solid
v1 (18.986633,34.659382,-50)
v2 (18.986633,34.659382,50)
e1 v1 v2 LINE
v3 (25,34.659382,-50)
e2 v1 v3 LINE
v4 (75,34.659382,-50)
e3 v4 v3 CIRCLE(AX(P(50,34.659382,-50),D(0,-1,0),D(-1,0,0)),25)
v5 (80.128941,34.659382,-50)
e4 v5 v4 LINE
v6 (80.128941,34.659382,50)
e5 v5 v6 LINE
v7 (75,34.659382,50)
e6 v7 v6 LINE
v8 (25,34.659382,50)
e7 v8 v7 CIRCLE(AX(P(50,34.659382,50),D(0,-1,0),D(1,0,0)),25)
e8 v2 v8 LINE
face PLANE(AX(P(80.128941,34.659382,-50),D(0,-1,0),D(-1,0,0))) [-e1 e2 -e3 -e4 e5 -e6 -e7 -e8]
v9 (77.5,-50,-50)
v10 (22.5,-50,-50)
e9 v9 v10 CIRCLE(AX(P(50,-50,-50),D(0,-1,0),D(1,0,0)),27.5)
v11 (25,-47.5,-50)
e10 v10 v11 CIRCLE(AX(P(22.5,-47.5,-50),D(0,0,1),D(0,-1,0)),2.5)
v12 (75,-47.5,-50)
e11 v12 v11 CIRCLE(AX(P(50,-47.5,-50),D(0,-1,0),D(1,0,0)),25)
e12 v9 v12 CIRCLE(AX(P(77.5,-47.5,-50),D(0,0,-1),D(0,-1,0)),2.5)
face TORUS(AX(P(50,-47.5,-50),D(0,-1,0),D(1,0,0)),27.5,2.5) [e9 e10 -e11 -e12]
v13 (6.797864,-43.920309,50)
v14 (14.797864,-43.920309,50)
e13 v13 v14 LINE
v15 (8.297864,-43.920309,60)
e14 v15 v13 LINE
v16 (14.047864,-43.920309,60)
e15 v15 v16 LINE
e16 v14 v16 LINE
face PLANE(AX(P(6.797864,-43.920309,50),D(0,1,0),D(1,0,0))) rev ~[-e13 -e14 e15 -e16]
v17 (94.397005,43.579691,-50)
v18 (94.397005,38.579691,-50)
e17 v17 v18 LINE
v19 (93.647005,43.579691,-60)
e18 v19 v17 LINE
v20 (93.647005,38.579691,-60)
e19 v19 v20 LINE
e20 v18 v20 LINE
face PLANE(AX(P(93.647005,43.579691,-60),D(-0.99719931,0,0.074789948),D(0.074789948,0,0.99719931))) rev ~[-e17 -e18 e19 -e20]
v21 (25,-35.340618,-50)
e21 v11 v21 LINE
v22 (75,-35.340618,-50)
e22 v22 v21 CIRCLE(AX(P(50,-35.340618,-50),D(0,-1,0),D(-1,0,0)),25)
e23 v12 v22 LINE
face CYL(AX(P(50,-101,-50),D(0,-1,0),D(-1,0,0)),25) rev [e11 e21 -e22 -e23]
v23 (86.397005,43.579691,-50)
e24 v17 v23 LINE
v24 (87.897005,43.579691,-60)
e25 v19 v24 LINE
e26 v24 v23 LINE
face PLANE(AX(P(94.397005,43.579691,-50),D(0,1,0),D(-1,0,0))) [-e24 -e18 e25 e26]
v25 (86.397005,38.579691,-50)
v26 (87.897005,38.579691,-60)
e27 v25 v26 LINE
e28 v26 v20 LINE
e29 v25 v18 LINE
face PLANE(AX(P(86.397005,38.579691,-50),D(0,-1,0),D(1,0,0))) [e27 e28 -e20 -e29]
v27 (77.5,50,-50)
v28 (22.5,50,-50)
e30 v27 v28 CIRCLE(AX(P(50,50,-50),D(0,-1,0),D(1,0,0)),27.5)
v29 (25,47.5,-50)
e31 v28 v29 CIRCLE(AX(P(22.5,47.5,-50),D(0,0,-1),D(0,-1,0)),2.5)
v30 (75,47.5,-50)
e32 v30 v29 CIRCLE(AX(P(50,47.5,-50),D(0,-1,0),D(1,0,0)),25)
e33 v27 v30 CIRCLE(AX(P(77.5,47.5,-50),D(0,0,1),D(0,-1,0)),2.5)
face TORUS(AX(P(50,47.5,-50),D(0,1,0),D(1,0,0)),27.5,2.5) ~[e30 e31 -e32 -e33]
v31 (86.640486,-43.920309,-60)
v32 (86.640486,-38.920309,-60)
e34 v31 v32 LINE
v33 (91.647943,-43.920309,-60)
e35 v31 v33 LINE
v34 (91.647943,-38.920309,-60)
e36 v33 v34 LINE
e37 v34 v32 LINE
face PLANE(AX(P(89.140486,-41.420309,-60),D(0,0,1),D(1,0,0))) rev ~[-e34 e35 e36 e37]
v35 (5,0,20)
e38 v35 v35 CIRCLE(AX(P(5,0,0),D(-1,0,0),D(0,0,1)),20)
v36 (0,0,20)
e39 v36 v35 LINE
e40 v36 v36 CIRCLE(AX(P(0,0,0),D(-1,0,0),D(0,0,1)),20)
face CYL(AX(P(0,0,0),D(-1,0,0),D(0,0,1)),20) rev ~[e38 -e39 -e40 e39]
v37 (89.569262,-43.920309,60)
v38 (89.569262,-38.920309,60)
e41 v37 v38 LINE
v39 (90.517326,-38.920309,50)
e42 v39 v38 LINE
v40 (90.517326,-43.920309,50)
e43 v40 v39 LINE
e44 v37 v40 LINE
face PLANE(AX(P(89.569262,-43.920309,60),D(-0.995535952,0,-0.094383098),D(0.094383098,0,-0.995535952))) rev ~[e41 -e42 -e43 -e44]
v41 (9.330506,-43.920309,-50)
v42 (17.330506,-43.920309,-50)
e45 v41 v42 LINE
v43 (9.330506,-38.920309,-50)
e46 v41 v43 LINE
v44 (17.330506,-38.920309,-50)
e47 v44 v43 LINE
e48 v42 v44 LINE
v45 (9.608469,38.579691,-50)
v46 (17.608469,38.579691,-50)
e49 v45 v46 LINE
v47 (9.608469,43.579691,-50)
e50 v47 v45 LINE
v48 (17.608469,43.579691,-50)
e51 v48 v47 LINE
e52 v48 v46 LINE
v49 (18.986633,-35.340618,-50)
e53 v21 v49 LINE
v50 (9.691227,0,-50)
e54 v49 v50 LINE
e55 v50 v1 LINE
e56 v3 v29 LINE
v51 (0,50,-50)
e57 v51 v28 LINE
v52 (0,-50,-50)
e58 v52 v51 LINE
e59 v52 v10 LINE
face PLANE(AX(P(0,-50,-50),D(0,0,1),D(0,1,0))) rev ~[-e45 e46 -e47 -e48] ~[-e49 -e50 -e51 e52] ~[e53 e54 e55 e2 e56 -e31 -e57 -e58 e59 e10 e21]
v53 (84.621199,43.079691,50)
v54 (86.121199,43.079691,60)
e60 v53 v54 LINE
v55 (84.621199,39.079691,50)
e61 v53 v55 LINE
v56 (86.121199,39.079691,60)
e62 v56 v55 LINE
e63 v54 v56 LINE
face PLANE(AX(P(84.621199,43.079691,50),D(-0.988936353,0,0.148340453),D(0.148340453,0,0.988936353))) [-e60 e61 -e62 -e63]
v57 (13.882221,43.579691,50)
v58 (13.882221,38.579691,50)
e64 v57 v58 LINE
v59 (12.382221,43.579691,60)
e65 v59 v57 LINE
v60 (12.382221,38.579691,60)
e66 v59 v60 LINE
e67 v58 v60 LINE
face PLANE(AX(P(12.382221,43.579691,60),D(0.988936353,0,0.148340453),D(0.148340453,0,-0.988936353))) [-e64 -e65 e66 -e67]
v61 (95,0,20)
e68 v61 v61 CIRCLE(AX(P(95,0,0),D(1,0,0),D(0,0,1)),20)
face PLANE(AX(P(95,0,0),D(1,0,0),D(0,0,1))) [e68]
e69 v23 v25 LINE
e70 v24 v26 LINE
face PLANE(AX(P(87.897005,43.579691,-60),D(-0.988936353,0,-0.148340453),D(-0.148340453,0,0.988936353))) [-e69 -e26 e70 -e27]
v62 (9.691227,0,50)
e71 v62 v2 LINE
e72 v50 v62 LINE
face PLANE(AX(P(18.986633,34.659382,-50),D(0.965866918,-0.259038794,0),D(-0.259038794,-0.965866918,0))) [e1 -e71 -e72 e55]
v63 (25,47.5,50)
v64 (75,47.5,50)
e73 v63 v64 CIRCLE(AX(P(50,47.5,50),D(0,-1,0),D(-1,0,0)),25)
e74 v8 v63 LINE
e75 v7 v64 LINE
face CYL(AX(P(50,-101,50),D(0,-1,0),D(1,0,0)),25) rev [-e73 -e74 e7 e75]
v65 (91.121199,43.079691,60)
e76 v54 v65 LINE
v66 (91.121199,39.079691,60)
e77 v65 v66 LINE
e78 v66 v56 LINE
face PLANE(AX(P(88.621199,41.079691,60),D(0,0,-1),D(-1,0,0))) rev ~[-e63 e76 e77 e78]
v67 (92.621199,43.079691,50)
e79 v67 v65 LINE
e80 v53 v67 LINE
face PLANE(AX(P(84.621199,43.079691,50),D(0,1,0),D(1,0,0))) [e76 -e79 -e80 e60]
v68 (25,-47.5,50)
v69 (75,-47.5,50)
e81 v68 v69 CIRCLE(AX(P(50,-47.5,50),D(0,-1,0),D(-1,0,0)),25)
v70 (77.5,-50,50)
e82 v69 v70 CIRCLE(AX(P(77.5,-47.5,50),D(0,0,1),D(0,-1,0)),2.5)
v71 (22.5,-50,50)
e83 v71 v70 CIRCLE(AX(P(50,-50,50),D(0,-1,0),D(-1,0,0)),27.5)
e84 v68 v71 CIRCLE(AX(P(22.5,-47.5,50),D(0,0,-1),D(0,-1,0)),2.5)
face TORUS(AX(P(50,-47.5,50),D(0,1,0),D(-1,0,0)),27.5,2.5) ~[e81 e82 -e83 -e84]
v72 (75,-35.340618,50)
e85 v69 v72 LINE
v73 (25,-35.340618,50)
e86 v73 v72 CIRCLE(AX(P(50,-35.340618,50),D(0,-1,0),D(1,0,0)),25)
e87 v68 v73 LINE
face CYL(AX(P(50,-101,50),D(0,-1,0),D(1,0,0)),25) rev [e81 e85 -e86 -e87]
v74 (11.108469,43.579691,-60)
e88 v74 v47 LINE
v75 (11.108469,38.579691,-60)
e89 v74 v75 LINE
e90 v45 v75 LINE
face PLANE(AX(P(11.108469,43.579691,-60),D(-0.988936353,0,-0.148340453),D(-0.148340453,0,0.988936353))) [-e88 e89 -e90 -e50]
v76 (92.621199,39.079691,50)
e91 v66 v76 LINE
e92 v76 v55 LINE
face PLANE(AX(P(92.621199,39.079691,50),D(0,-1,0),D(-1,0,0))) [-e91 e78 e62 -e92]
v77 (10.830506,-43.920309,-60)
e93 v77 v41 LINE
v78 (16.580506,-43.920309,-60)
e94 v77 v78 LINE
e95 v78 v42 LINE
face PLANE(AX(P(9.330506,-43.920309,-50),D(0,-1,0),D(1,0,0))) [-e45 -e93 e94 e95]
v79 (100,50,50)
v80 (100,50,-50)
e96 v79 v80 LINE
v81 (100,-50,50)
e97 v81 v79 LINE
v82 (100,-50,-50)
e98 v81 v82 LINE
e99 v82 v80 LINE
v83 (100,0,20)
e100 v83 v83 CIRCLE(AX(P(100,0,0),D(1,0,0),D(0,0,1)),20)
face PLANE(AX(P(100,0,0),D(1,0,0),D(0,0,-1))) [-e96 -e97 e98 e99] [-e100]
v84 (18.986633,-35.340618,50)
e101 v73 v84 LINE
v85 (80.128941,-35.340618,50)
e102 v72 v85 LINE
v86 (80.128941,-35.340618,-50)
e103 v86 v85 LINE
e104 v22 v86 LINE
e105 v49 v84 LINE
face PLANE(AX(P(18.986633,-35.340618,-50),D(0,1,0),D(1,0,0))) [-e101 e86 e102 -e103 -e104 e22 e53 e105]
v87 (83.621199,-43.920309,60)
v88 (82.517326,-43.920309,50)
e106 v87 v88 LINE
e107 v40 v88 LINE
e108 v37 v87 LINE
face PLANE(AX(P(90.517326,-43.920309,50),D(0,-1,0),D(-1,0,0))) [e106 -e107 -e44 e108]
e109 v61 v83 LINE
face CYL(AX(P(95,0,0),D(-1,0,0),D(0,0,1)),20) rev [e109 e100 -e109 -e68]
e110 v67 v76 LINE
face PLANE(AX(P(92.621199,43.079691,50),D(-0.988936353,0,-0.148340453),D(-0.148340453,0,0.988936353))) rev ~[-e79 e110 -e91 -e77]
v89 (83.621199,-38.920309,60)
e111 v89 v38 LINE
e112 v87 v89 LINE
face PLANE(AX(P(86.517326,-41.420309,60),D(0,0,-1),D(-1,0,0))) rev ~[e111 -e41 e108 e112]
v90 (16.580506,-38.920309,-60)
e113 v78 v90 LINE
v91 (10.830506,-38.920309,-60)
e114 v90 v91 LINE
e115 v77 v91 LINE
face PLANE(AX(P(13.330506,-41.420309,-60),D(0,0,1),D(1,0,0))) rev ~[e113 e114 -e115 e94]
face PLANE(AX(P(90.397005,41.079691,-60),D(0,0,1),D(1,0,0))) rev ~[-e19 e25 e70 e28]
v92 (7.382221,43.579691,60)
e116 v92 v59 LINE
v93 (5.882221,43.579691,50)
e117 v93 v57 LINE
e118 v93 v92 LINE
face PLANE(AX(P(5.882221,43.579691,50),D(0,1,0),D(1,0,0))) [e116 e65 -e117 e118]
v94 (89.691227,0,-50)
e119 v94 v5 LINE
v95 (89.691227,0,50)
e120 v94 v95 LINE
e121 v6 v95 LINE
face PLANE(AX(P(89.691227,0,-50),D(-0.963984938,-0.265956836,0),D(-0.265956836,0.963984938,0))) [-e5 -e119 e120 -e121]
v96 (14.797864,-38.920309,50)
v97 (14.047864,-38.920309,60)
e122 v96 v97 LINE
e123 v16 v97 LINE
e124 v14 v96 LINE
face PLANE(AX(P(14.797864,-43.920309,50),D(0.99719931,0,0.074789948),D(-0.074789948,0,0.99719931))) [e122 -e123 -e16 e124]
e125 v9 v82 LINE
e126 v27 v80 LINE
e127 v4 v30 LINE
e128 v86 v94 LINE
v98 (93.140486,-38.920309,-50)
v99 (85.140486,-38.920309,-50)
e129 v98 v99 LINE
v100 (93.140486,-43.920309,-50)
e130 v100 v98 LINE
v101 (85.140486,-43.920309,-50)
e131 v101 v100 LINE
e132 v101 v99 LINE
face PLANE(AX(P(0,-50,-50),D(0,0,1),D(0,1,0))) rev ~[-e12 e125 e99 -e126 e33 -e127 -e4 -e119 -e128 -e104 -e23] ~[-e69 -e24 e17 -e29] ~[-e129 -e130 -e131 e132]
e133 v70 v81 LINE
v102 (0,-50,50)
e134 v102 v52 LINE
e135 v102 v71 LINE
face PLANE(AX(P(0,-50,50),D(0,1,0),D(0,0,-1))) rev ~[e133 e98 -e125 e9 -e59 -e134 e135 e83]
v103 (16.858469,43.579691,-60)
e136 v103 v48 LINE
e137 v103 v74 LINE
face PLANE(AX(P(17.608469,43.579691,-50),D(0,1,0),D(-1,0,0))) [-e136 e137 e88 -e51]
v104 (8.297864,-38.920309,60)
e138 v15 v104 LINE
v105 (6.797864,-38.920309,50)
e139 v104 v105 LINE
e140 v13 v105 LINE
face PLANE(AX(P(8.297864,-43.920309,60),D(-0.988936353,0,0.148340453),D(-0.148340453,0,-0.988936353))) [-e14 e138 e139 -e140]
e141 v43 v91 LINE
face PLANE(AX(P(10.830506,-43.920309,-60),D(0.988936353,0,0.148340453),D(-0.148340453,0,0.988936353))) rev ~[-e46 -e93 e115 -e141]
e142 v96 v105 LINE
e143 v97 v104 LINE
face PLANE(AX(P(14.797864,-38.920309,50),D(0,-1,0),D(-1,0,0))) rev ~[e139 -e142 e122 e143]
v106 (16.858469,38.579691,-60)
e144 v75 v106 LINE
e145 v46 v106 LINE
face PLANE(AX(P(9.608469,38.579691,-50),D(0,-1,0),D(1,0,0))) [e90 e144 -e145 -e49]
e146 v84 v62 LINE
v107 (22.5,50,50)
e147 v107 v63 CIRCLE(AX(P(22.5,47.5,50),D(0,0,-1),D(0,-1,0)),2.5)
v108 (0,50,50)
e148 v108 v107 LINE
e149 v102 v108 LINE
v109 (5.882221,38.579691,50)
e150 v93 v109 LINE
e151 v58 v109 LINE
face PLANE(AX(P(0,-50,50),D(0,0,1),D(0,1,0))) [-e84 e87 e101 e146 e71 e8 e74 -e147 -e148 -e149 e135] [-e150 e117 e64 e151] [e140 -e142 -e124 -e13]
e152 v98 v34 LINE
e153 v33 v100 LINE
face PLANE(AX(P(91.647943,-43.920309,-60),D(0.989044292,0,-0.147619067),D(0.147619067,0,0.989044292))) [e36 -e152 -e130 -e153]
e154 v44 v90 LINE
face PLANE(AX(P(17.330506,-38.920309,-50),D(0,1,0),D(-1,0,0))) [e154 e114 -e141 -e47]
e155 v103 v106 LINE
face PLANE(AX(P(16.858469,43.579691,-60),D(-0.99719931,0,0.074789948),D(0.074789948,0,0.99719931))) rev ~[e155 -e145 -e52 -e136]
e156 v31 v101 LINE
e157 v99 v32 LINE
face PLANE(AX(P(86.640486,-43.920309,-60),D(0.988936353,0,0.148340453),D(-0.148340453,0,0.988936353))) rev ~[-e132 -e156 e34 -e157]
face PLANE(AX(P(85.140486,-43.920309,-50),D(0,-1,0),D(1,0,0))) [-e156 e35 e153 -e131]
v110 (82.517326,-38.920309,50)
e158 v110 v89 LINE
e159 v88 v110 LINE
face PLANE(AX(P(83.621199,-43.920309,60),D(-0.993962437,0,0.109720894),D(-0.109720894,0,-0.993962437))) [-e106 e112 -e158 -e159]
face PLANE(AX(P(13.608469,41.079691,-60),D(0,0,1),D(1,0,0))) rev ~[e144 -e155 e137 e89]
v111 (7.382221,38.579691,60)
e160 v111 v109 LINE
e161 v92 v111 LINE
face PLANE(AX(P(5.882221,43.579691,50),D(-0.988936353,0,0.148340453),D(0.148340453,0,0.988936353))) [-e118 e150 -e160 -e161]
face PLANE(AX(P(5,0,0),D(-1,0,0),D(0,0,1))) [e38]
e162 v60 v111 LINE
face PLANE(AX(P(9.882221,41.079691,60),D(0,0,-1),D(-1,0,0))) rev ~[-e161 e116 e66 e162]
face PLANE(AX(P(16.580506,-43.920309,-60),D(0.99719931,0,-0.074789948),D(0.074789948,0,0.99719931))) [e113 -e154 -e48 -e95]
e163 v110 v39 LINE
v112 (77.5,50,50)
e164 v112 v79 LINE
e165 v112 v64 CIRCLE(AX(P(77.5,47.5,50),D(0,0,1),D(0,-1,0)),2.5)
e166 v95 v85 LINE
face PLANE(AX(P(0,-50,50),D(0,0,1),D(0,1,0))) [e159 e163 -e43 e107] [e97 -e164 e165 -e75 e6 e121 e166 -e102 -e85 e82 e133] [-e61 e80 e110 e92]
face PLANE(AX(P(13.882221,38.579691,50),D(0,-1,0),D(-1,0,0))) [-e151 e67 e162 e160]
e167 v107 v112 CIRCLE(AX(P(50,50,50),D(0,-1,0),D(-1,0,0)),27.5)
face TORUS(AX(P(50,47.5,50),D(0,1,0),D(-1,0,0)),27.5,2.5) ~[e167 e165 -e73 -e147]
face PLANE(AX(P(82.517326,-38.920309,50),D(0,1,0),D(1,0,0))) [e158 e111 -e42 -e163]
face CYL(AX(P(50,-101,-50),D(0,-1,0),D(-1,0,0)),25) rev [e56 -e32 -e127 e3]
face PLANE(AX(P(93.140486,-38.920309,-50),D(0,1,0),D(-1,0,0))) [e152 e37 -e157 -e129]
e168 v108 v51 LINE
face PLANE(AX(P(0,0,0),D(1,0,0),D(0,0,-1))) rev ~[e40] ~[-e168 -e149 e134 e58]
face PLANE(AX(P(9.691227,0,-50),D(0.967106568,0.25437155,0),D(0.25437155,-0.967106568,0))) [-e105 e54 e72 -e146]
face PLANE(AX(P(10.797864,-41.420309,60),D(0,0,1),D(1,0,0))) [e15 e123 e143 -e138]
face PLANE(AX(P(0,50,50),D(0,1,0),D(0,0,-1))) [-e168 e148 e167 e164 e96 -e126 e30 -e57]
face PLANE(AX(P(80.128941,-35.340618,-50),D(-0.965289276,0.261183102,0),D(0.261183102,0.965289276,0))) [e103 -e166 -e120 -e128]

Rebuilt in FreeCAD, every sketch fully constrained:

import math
import FreeCAD as App
import Part
import Sketcher
from FreeCAD import Vector
Q = App.Units.Quantity


def edges_at(feature, points):
    """Names of the edges that pass closest to the given points."""
    edges = feature.Shape.Edges
    near = lambda p: min(range(len(edges)), key=lambda i: edges[i].distToShape(Part.Vertex(*p))[0])
    return sorted({f"Edge{near(p) + 1}" for p in points})


def add_polygon(sketch, points):
    """Adds a closed chain of lines whose ends are joined by coincident constraints."""
    first, n = sketch.GeometryCount, len(points)
    for a, b in zip(points, points[1:] + points[:1]):
        sketch.addGeometry(Part.LineSegment(App.Vector(*a, 0), App.Vector(*b, 0)), False)
    for i in range(n):
        sketch.addConstraint(Sketcher.Constraint("Coincident", first + i, 2, first + (i + 1) % n, 1))

doc = App.newDocument("Part")
body = doc.addObject("PartDesign::Body", "Body")

sketch1 = doc.addObject("Sketcher::SketchObject", "Sketch")
body.addObject(sketch1)
sketch1.AttachmentSupport = (doc.YZ_Plane, [""])
sketch1.MapMode = "FlatFace"
add_polygon(sketch1, [(50, 50), (-50, 50), (-50, -50), (50, -50)])
sketch1.addConstraint([
    Sketcher.Constraint("Horizontal", 0),
    Sketcher.Constraint("Vertical", 1),
    Sketcher.Constraint("Horizontal", 2),
    Sketcher.Constraint("Vertical", 3),
    Sketcher.Constraint("Symmetric", 0, 2, 2, 2, -1, 1),
    Sketcher.Constraint("Equal", 2, 1),
    Sketcher.Constraint("DistanceX", 0, 2, 0, 1, Q("100 mm")),
])
pad1 = doc.addObject("PartDesign::Pad", "Pad")
body.addObject(pad1)
pad1.Profile = sketch1
pad1.Length = 100

sketch2 = doc.addObject("Sketcher::SketchObject", "Sketch001")
body.addObject(sketch2)
sketch2.AttachmentSupport = (doc.YZ_Plane, [""])
sketch2.MapMode = "FlatFace"
sketch2.addGeometry(Part.Circle(Vector(0, 0, 0), Vector(0, 0, 1), 20), False)
sketch2.addConstraint([
    Sketcher.Constraint("Coincident", 0, 3, -1, 1),
    Sketcher.Constraint("Diameter", 0, Q("40 mm")),
])
pocket1 = doc.addObject("PartDesign::Pocket", "Pocket")
body.addObject(pocket1)
pocket1.Profile = sketch2
pocket1.Length = 5
pocket1.Reversed = True

sketch3 = doc.addObject("Sketcher::SketchObject", "Sketch002")
body.addObject(sketch3)
sketch3.AttachmentSupport = (doc.YZ_Plane, [""])
sketch3.MapMode = "FlatFace"
sketch3.AttachmentOffset = App.Placement(Vector(0, 0, 95), App.Rotation())
sketch3.addGeometry(Part.Circle(Vector(0, 0, 0), Vector(0, 0, 1), 20), False)
sketch3.addConstraint([
    Sketcher.Constraint("Coincident", 0, 3, -1, 1),
    Sketcher.Constraint("Diameter", 0, Q("40 mm")),
])
pocket2 = doc.addObject("PartDesign::Pocket", "Pocket001")
body.addObject(pocket2)
pocket2.Profile = sketch3
pocket2.Length = 5
pocket2.Reversed = True

sketch4 = doc.addObject("Sketcher::SketchObject", "Sketch003")
body.addObject(sketch4)
sketch4.AttachmentSupport = (doc.XY_Plane, [""])
sketch4.MapMode = "FlatFace"
sketch4.AttachmentOffset = App.Placement(Vector(0, 0, -50), App.Rotation())
add_polygon(sketch4, [(19, 35), (80, 35), (90, 0), (80, -35), (19, -35), (10, 0)])
sketch4.addConstraint([
    Sketcher.Constraint("Horizontal", 0),
    Sketcher.Constraint("Horizontal", 3),
    Sketcher.Constraint("PointOnObject", 1, 2, -1),
    Sketcher.Constraint("PointOnObject", 4, 2, -1),
    Sketcher.Constraint("Vertical", 0, 2, 2, 2),
    Sketcher.Constraint("Vertical", 3, 2, 5, 2),
    Sketcher.Constraint("DistanceY", 2, 2, 0, 2, Q("70 mm")),
    Sketcher.Constraint("DistanceX", 4, 2, 1, 2, Q("80 mm")),
    Sketcher.Constraint("DistanceX", 0, 1, 0, 2, Q("61.142309 mm")),
    Sketcher.Constraint("Distance", 4, Q("36.54263 mm")),
    Sketcher.Constraint("Distance", 5, Q("35.884221 mm")),
    Sketcher.Constraint("DistanceX", -1, 1, 0, 2, Q("80.128941 mm")),
])
pocket3 = doc.addObject("PartDesign::Pocket", "Pocket002")
body.addObject(pocket3)
pocket3.Profile = sketch4
pocket3.Type = "ThroughAll"
pocket3.Reversed = True

sketch5 = doc.addObject("Sketcher::SketchObject", "Sketch004")
body.addObject(sketch5)
sketch5.AttachmentSupport = (doc.XZ_Plane, [""])
sketch5.MapMode = "FlatFace"
sketch5.AttachmentOffset = App.Placement(Vector(0, 0, -50), App.Rotation())
sketch5.addGeometry([
    Part.ArcOfCircle(Part.Circle(Vector(50, 50, 0), Vector(0, 0, 1), 25), math.radians(180), math.radians(360)),
    Part.LineSegment(Vector(25, 50, 0), Vector(25, 830, 0)),
    Part.LineSegment(Vector(25, 830, 0), Vector(75, 830, 0)),
    Part.LineSegment(Vector(75, 830, 0), Vector(75, 50, 0)),
], False)
sketch5.addConstraint([
    Sketcher.Constraint("Tangent", 0, 1, 1, 1),
    Sketcher.Constraint("Coincident", 1, 2, 2, 1),
    Sketcher.Constraint("Coincident", 2, 2, 3, 1),
    Sketcher.Constraint("Tangent", 3, 2, 0, 2),
    Sketcher.Constraint("Vertical", 1),
    Sketcher.Constraint("Horizontal", 2),
    Sketcher.Constraint("Vertical", 3),
    Sketcher.Constraint("Radius", 0, Q("25 mm")),
    Sketcher.Constraint("DistanceY", 1, 1, 1, 2, Q("780 mm")),
    Sketcher.Constraint("DistanceX", -1, 1, 0, 3, Q("50 mm")),
    Sketcher.Constraint("DistanceY", -1, 1, 0, 3, Q("50 mm")),
])
pocket4 = doc.addObject("PartDesign::Pocket", "Pocket003")
body.addObject(pocket4)
pocket4.Profile = sketch5
pocket4.Type = "ThroughAll"
pocket4.Midplane = True

sketch6 = doc.addObject("Sketcher::SketchObject", "Sketch005")
body.addObject(sketch6)
sketch6.AttachmentSupport = (doc.XZ_Plane, [""])
sketch6.MapMode = "FlatFace"
sketch6.AttachmentOffset = App.Placement(Vector(0, 0, -50), App.Rotation())
sketch6.addGeometry([
    Part.ArcOfCircle(Part.Circle(Vector(50, -50, 0), Vector(0, 0, 1), 25), math.radians(0), math.radians(180)),
    Part.LineSegment(Vector(75, -50, 0), Vector(75, -830, 0)),
    Part.LineSegment(Vector(75, -830, 0), Vector(25, -830, 0)),
    Part.LineSegment(Vector(25, -830, 0), Vector(25, -50, 0)),
], False)
sketch6.addConstraint([
    Sketcher.Constraint("Tangent", 0, 1, 1, 1),
    Sketcher.Constraint("Coincident", 1, 2, 2, 1),
    Sketcher.Constraint("Coincident", 2, 2, 3, 1),
    Sketcher.Constraint("Tangent", 3, 2, 0, 2),
    Sketcher.Constraint("Vertical", 1),
    Sketcher.Constraint("Horizontal", 2),
    Sketcher.Constraint("Vertical", 3),
    Sketcher.Constraint("Radius", 0, Q("25 mm")),
    Sketcher.Constraint("DistanceY", 1, 2, 1, 1, Q("780 mm")),
    Sketcher.Constraint("DistanceX", -1, 1, 0, 3, Q("50 mm")),
    Sketcher.Constraint("DistanceY", 0, 3, -1, 1, Q("50 mm")),
])
pocket5 = doc.addObject("PartDesign::Pocket", "Pocket004")
body.addObject(pocket5)
pocket5.Profile = sketch6
pocket5.Type = "ThroughAll"
pocket5.Midplane = True
doc.recompute()

fillet = doc.addObject("PartDesign::Fillet", "Fillet")
body.addObject(fillet)
fillet.Base = (pocket5, edges_at(pocket5, [
    (50, -50, 25),
    (50, 50, 25),
    (50, -50, -25),
    (50, 50, -25),
]))
fillet.Radius = 2.5

sketch7 = doc.addObject("Sketcher::SketchObject", "Sketch006")
body.addObject(sketch7)
sketch7.AttachmentSupport = (doc.XY_Plane, [""])
sketch7.MapMode = "FlatFace"
sketch7.AttachmentOffset = App.Placement(Vector(0, 0, 50), App.Rotation())
sketch7.addGeometry([
    Part.LineSegment(Vector(92.6, 43.1, 0), Vector(84.6, 43.1, 0)),
    Part.ArcOfCircle(Part.Circle(Vector(84.6, 41.1, 0), Vector(0, 0, 1), 2), math.radians(90), math.radians(270)),
    Part.LineSegment(Vector(84.6, 39.1, 0), Vector(92.6, 39.1, 0)),
    Part.ArcOfCircle(Part.Circle(Vector(92.6, 41.1, 0), Vector(0, 0, 1), 2), math.radians(-90), math.radians(90)),
], False)
sketch7.addConstraint([
    Sketcher.Constraint("Tangent", 0, 2, 1, 1),
    Sketcher.Constraint("Tangent", 1, 2, 2, 1),
    Sketcher.Constraint("Tangent", 2, 2, 3, 1),
    Sketcher.Constraint("Tangent", 3, 2, 0, 1),
    Sketcher.Constraint("Horizontal", 0),
    Sketcher.Constraint("Horizontal", 2),
    Sketcher.Constraint("Radius", 1, Q("2 mm")),
    Sketcher.Constraint("DistanceX", 0, 2, 0, 1, Q("8 mm")),
    Sketcher.Constraint("DistanceX", -1, 1, 1, 3, Q("84.621199 mm")),
    Sketcher.Constraint("DistanceY", -1, 1, 1, 3, Q("41.079691 mm")),
])
pad2 = doc.addObject("PartDesign::Pad", "Pad001")
body.addObject(pad2)
pad2.Profile = sketch7
pad2.Length = 10

sketch8 = doc.addObject("Sketcher::SketchObject", "Sketch007")
body.addObject(sketch8)
sketch8.AttachmentSupport = (doc.XZ_Plane, [""])
sketch8.MapMode = "FlatFace"
sketch8.AttachmentOffset = App.Placement(Vector(0, 0, -43.079691), App.Rotation())
add_polygon(sketch8, [(86.1, 60), (84.6, 50), (82.6, 50), (82.6, 60)])
sketch8.addConstraint([
    Sketcher.Constraint("Horizontal", 1),
    Sketcher.Constraint("Vertical", 2),
    Sketcher.Constraint("Horizontal", 3),
    Sketcher.Constraint("DistanceX", 1, 2, 1, 1, Q("2 mm")),
    Sketcher.Constraint("DistanceY", 2, 1, 2, 2, Q("10 mm")),
    Sketcher.Constraint("DistanceX", 3, 1, 3, 2, Q("3.5 mm")),
    Sketcher.Constraint("DistanceY", -1, 1, 0, 2, Q("50 mm")),
    Sketcher.Constraint("DistanceX", -1, 1, 0, 2, Q("84.621199 mm")),
])
pocket6 = doc.addObject("PartDesign::Pocket", "Pocket005")
body.addObject(pocket6)
pocket6.Profile = sketch8
pocket6.Length = 10
pocket6.Reversed = True

sketch9 = doc.addObject("Sketcher::SketchObject", "Sketch008")
body.addObject(sketch9)
sketch9.AttachmentSupport = (doc.XZ_Plane, [""])
sketch9.MapMode = "FlatFace"
sketch9.AttachmentOffset = App.Placement(Vector(0, 0, -43.079691), App.Rotation())
add_polygon(sketch9, [(91.1, 60), (94.6, 60), (94.6, 50), (92.6, 50)])
sketch9.addConstraint([
    Sketcher.Constraint("Horizontal", 0),
    Sketcher.Constraint("Vertical", 1),
    Sketcher.Constraint("Horizontal", 2),
    Sketcher.Constraint("DistanceX", 2, 2, 2, 1, Q("2 mm")),
    Sketcher.Constraint("DistanceY", 1, 2, 1, 1, Q("10 mm")),
    Sketcher.Constraint("DistanceX", 0, 1, 0, 2, Q("3.5 mm")),
    Sketcher.Constraint("DistanceY", -1, 1, 0, 2, Q("60 mm")),
    Sketcher.Constraint("DistanceX", -1, 1, 0, 2, Q("94.621199 mm")),
])
pocket7 = doc.addObject("PartDesign::Pocket", "Pocket006")
body.addObject(pocket7)
pocket7.Profile = sketch9
pocket7.Length = 10
pocket7.Reversed = True

sketch10 = doc.addObject("Sketcher::SketchObject", "Sketch009")
body.addObject(sketch10)
sketch10.AttachmentSupport = (doc.XY_Plane, [""])
sketch10.MapMode = "FlatFace"
sketch10.AttachmentOffset = App.Placement(Vector(0, 0, 50), App.Rotation())
sketch10.addGeometry([
    Part.LineSegment(Vector(13.9, 43.6, 0), Vector(5.9, 43.6, 0)),
    Part.ArcOfCircle(Part.Circle(Vector(5.9, 41.1, 0), Vector(0, 0, 1), 2.5), math.radians(90), math.radians(270)),
    Part.LineSegment(Vector(5.9, 38.6, 0), Vector(13.9, 38.6, 0)),
    Part.ArcOfCircle(Part.Circle(Vector(13.9, 41.1, 0), Vector(0, 0, 1), 2.5), math.radians(-90), math.radians(90)),
], False)
sketch10.addConstraint([
    Sketcher.Constraint("Tangent", 0, 2, 1, 1),
    Sketcher.Constraint("Tangent", 1, 2, 2, 1),
    Sketcher.Constraint("Tangent", 2, 2, 3, 1),
    Sketcher.Constraint("Tangent", 3, 2, 0, 1),
    Sketcher.Constraint("Horizontal", 0),
    Sketcher.Constraint("Horizontal", 2),
    Sketcher.Constraint("Radius", 1, Q("2.5 mm")),
    Sketcher.Constraint("DistanceX", 0, 2, 0, 1, Q("8 mm")),
    Sketcher.Constraint("DistanceX", -1, 1, 1, 3, Q("5.882221 mm")),
    Sketcher.Constraint("DistanceY", -1, 1, 1, 3, Q("41.079691 mm")),
])
pad3 = doc.addObject("PartDesign::Pad", "Pad002")
body.addObject(pad3)
pad3.Profile = sketch10
pad3.Length = 10

sketch11 = doc.addObject("Sketcher::SketchObject", "Sketch010")
body.addObject(sketch11)
sketch11.AttachmentSupport = (doc.XZ_Plane, [""])
sketch11.MapMode = "FlatFace"
sketch11.AttachmentOffset = App.Placement(Vector(0, 0, -43.579691), App.Rotation())
add_polygon(sketch11, [(5.9, 50), (3.4, 50), (3.4, 60), (7.4, 60)])
sketch11.addConstraint([
    Sketcher.Constraint("Horizontal", 0),
    Sketcher.Constraint("Vertical", 1),
    Sketcher.Constraint("Horizontal", 2),
    Sketcher.Constraint("DistanceX", 2, 1, 2, 2, Q("4 mm")),
    Sketcher.Constraint("DistanceY", 1, 1, 1, 2, Q("10 mm")),
    Sketcher.Constraint("DistanceX", 0, 2, 0, 1, Q("2.5 mm")),
    Sketcher.Constraint("DistanceY", -1, 1, 0, 2, Q("50 mm")),
    Sketcher.Constraint("DistanceX", -1, 1, 0, 2, Q("3.382221 mm")),
])
pocket8 = doc.addObject("PartDesign::Pocket", "Pocket007")
body.addObject(pocket8)
pocket8.Profile = sketch11
pocket8.Length = 10
pocket8.Reversed = True

sketch12 = doc.addObject("Sketcher::SketchObject", "Sketch011")
body.addObject(sketch12)
sketch12.AttachmentSupport = (doc.XZ_Plane, [""])
sketch12.MapMode = "FlatFace"
sketch12.AttachmentOffset = App.Placement(Vector(0, 0, -43.579691), App.Rotation())
add_polygon(sketch12, [(13.9, 50), (12.4, 60), (16.4, 60), (16.4, 50)])
sketch12.addConstraint([
    Sketcher.Constraint("Horizontal", 1),
    Sketcher.Constraint("Vertical", 2),
    Sketcher.Constraint("Horizontal", 3),
    Sketcher.Constraint("DistanceX", 1, 1, 1, 2, Q("4 mm")),
    Sketcher.Constraint("DistanceY", 2, 2, 2, 1, Q("10 mm")),
    Sketcher.Constraint("DistanceX", 3, 2, 3, 1, Q("2.5 mm")),
    Sketcher.Constraint("DistanceY", -1, 1, 0, 2, Q("60 mm")),
    Sketcher.Constraint("DistanceX", -1, 1, 0, 2, Q("12.382221 mm")),
])
pocket9 = doc.addObject("PartDesign::Pocket", "Pocket008")
body.addObject(pocket9)
pocket9.Profile = sketch12
pocket9.Length = 10
pocket9.Reversed = True

sketch13 = doc.addObject("Sketcher::SketchObject", "Sketch012")
body.addObject(sketch13)
sketch13.AttachmentSupport = (doc.XY_Plane, [""])
sketch13.MapMode = "FlatFace"
sketch13.AttachmentOffset = App.Placement(Vector(0, 0, 50), App.Rotation())
sketch13.addGeometry([
    Part.LineSegment(Vector(6.8, -43.9, 0), Vector(14.8, -43.9, 0)),
    Part.ArcOfCircle(Part.Circle(Vector(14.8, -41.4, 0), Vector(0, 0, 1), 2.5), math.radians(-90), math.radians(90)),
    Part.LineSegment(Vector(14.8, -38.9, 0), Vector(6.8, -38.9, 0)),
    Part.ArcOfCircle(Part.Circle(Vector(6.8, -41.4, 0), Vector(0, 0, 1), 2.5), math.radians(90), math.radians(270)),
], False)
sketch13.addConstraint([
    Sketcher.Constraint("Tangent", 0, 2, 1, 1),
    Sketcher.Constraint("Tangent", 1, 2, 2, 1),
    Sketcher.Constraint("Tangent", 2, 2, 3, 1),
    Sketcher.Constraint("Tangent", 3, 2, 0, 1),
    Sketcher.Constraint("Horizontal", 0),
    Sketcher.Constraint("Horizontal", 2),
    Sketcher.Constraint("Radius", 1, Q("2.5 mm")),
    Sketcher.Constraint("DistanceX", 0, 1, 0, 2, Q("8 mm")),
    Sketcher.Constraint("DistanceY", 1, 3, -1, 1, Q("41.420309 mm")),
    Sketcher.Constraint("DistanceX", -1, 1, 1, 3, Q("14.797864 mm")),
])
pad4 = doc.addObject("PartDesign::Pad", "Pad003")
body.addObject(pad4)
pad4.Profile = sketch13
pad4.Length = 10

sketch14 = doc.addObject("Sketcher::SketchObject", "Sketch013")
body.addObject(sketch14)
sketch14.AttachmentSupport = (doc.XZ_Plane, [""])
sketch14.MapMode = "FlatFace"
sketch14.AttachmentOffset = App.Placement(Vector(0, 0, 43.920309), App.Rotation())
add_polygon(sketch14, [(6.8, 50), (8.3, 60), (4.3, 60), (4.3, 50)])
sketch14.addConstraint([
    Sketcher.Constraint("Horizontal", 1),
    Sketcher.Constraint("Vertical", 2),
    Sketcher.Constraint("Horizontal", 3),
    Sketcher.Constraint("DistanceX", 1, 2, 1, 1, Q("4 mm")),
    Sketcher.Constraint("DistanceY", 2, 2, 2, 1, Q("10 mm")),
    Sketcher.Constraint("DistanceX", 3, 1, 3, 2, Q("2.5 mm")),
    Sketcher.Constraint("DistanceY", -1, 1, 0, 2, Q("60 mm")),
    Sketcher.Constraint("DistanceX", -1, 1, 0, 2, Q("8.297864 mm")),
])
pocket10 = doc.addObject("PartDesign::Pocket", "Pocket009")
body.addObject(pocket10)
pocket10.Profile = sketch14
pocket10.Length = 10

sketch15 = doc.addObject("Sketcher::SketchObject", "Sketch014")
body.addObject(sketch15)
sketch15.AttachmentSupport = (doc.XZ_Plane, [""])
sketch15.MapMode = "FlatFace"
sketch15.AttachmentOffset = App.Placement(Vector(0, 0, 43.920309), App.Rotation())
add_polygon(sketch15, [(17.3, 60), (14, 60), (14.8, 50), (17.3, 50)])
sketch15.addConstraint([
    Sketcher.Constraint("Horizontal", 0),
    Sketcher.Constraint("Horizontal", 2),
    Sketcher.Constraint("Vertical", 3),
    Sketcher.Constraint("DistanceY", 3, 1, 3, 2, Q("10 mm")),
    Sketcher.Constraint("DistanceX", 2, 1, 2, 2, Q("2.5 mm")),
    Sketcher.Constraint("DistanceY", -1, 1, 0, 2, Q("60 mm")),
    Sketcher.Constraint("DistanceX", 0, 2, 0, 1, Q("3.25 mm")),
    Sketcher.Constraint("DistanceX", -1, 1, 0, 2, Q("14.047864 mm")),
])
pocket11 = doc.addObject("PartDesign::Pocket", "Pocket010")
body.addObject(pocket11)
pocket11.Profile = sketch15
pocket11.Length = 10

sketch16 = doc.addObject("Sketcher::SketchObject", "Sketch015")
body.addObject(sketch16)
sketch16.AttachmentSupport = (doc.XY_Plane, [""])
sketch16.MapMode = "FlatFace"
sketch16.AttachmentOffset = App.Placement(Vector(0, 0, 50), App.Rotation())
sketch16.addGeometry([
    Part.LineSegment(Vector(90.5, -38.9, 0), Vector(82.5, -38.9, 0)),
    Part.ArcOfCircle(Part.Circle(Vector(82.5, -41.4, 0), Vector(0, 0, 1), 2.5), math.radians(90), math.radians(270)),
    Part.LineSegment(Vector(82.5, -43.9, 0), Vector(90.5, -43.9, 0)),
    Part.ArcOfCircle(Part.Circle(Vector(90.5, -41.4, 0), Vector(0, 0, 1), 2.5), math.radians(-90), math.radians(90)),
], False)
sketch16.addConstraint([
    Sketcher.Constraint("Tangent", 0, 2, 1, 1),
    Sketcher.Constraint("Tangent", 1, 2, 2, 1),
    Sketcher.Constraint("Tangent", 2, 2, 3, 1),
    Sketcher.Constraint("Tangent", 3, 2, 0, 1),
    Sketcher.Constraint("Horizontal", 0),
    Sketcher.Constraint("Horizontal", 2),
    Sketcher.Constraint("Radius", 1, Q("2.5 mm")),
    Sketcher.Constraint("DistanceX", 0, 2, 0, 1, Q("8 mm")),
    Sketcher.Constraint("DistanceY", 1, 3, -1, 1, Q("41.420309 mm")),
    Sketcher.Constraint("DistanceX", -1, 1, 1, 3, Q("82.517326 mm")),
])
pad5 = doc.addObject("PartDesign::Pad", "Pad004")
body.addObject(pad5)
pad5.Profile = sketch16
pad5.Length = 10

sketch17 = doc.addObject("Sketcher::SketchObject", "Sketch016")
body.addObject(sketch17)
sketch17.AttachmentSupport = (doc.XZ_Plane, [""])
sketch17.MapMode = "FlatFace"
sketch17.AttachmentOffset = App.Placement(Vector(0, 0, 43.920309), App.Rotation())
add_polygon(sketch17, [(82.5, 50), (83.6, 60), (80, 60), (80, 50)])
sketch17.addConstraint([
    Sketcher.Constraint("Horizontal", 1),
    Sketcher.Constraint("Vertical", 2),
    Sketcher.Constraint("Horizontal", 3),
    Sketcher.Constraint("DistanceY", 2, 2, 2, 1, Q("10 mm")),
    Sketcher.Constraint("DistanceX", 3, 1, 3, 2, Q("2.5 mm")),
    Sketcher.Constraint("DistanceY", -1, 1, 0, 2, Q("60 mm")),
    Sketcher.Constraint("DistanceX", -1, 1, 0, 2, Q("83.621199 mm")),
    Sketcher.Constraint("DistanceX", 1, 2, 1, 1, Q("3.603874 mm")),
])
pocket12 = doc.addObject("PartDesign::Pocket", "Pocket011")
body.addObject(pocket12)
pocket12.Profile = sketch17
pocket12.Length = 10

sketch18 = doc.addObject("Sketcher::SketchObject", "Sketch017")
body.addObject(sketch18)
sketch18.AttachmentSupport = (doc.XZ_Plane, [""])
sketch18.MapMode = "FlatFace"
sketch18.AttachmentOffset = App.Placement(Vector(0, 0, 43.920309), App.Rotation())
add_polygon(sketch18, [(89.6, 60), (90.5, 50), (93, 50), (93, 60)])
sketch18.addConstraint([
    Sketcher.Constraint("Horizontal", 1),
    Sketcher.Constraint("Vertical", 2),
    Sketcher.Constraint("Horizontal", 3),
    Sketcher.Constraint("DistanceY", 2, 1, 2, 2, Q("10 mm")),
    Sketcher.Constraint("DistanceX", 1, 1, 1, 2, Q("2.5 mm")),
    Sketcher.Constraint("DistanceY", -1, 1, 0, 2, Q("50 mm")),
    Sketcher.Constraint("Distance", 0, Q("10.044841 mm")),
    Sketcher.Constraint("DistanceX", -1, 1, 0, 2, Q("90.517326 mm")),
])
pocket13 = doc.addObject("PartDesign::Pocket", "Pocket012")
body.addObject(pocket13)
pocket13.Profile = sketch18
pocket13.Length = 10

sketch19 = doc.addObject("Sketcher::SketchObject", "Sketch018")
body.addObject(sketch19)
sketch19.AttachmentSupport = (doc.XY_Plane, [""])
sketch19.MapMode = "FlatFace"
sketch19.AttachmentOffset = App.Placement(Vector(0, 0, -50), App.Rotation())
sketch19.addGeometry([
    Part.LineSegment(Vector(9.6, 43.6, 0), Vector(17.6, 43.6, 0)),
    Part.ArcOfCircle(Part.Circle(Vector(17.6, 41.1, 0), Vector(0, 0, 1), 2.5), math.radians(-90), math.radians(90)),
    Part.LineSegment(Vector(17.6, 38.6, 0), Vector(9.6, 38.6, 0)),
    Part.ArcOfCircle(Part.Circle(Vector(9.6, 41.1, 0), Vector(0, 0, 1), 2.5), math.radians(90), math.radians(270)),
], False)
sketch19.addConstraint([
    Sketcher.Constraint("Tangent", 0, 2, 1, 2),
    Sketcher.Constraint("Tangent", 1, 1, 2, 1),
    Sketcher.Constraint("Tangent", 2, 2, 3, 2),
    Sketcher.Constraint("Tangent", 3, 1, 0, 1),
    Sketcher.Constraint("Horizontal", 0),
    Sketcher.Constraint("Horizontal", 2),
    Sketcher.Constraint("Radius", 1, Q("2.5 mm")),
    Sketcher.Constraint("DistanceX", 0, 1, 0, 2, Q("8 mm")),
    Sketcher.Constraint("DistanceX", -1, 1, 1, 3, Q("17.608469 mm")),
    Sketcher.Constraint("DistanceY", -1, 1, 1, 3, Q("41.079691 mm")),
])
pad6 = doc.addObject("PartDesign::Pad", "Pad005")
body.addObject(pad6)
pad6.Profile = sketch19
pad6.Length = 10
pad6.Reversed = True

sketch20 = doc.addObject("Sketcher::SketchObject", "Sketch019")
body.addObject(sketch20)
sketch20.AttachmentSupport = (doc.XZ_Plane, [""])
sketch20.MapMode = "FlatFace"
sketch20.AttachmentOffset = App.Placement(Vector(0, 0, -43.579691), App.Rotation())
add_polygon(sketch20, [(9.6, -50), (11.1, -60), (7.1, -60), (7.1, -50)])
sketch20.addConstraint([
    Sketcher.Constraint("Horizontal", 1),
    Sketcher.Constraint("Vertical", 2),
    Sketcher.Constraint("Horizontal", 3),
    Sketcher.Constraint("DistanceX", 1, 2, 1, 1, Q("4 mm")),
    Sketcher.Constraint("DistanceY", 2, 1, 2, 2, Q("10 mm")),
    Sketcher.Constraint("DistanceX", 3, 1, 3, 2, Q("2.5 mm")),
    Sketcher.Constraint("DistanceY", 0, 2, -1, 1, Q("60 mm")),
    Sketcher.Constraint("DistanceX", -1, 1, 0, 2, Q("11.108469 mm")),
])
pocket14 = doc.addObject("PartDesign::Pocket", "Pocket013")
body.addObject(pocket14)
pocket14.Profile = sketch20
pocket14.Length = 10
pocket14.Reversed = True

sketch21 = doc.addObject("Sketcher::SketchObject", "Sketch020")
body.addObject(sketch21)
sketch21.AttachmentSupport = (doc.XZ_Plane, [""])
sketch21.MapMode = "FlatFace"
sketch21.AttachmentOffset = App.Placement(Vector(0, 0, -43.579691), App.Rotation())
add_polygon(sketch21, [(16.9, -60), (17.6, -50), (20.1, -50), (20.1, -60)])
sketch21.addConstraint([
    Sketcher.Constraint("Horizontal", 1),
    Sketcher.Constraint("Vertical", 2),
    Sketcher.Constraint("Horizontal", 3),
    Sketcher.Constraint("DistanceY", 2, 2, 2, 1, Q("10 mm")),
    Sketcher.Constraint("DistanceX", 1, 1, 1, 2, Q("2.5 mm")),
    Sketcher.Constraint("DistanceY", 0, 2, -1, 1, Q("50 mm")),
    Sketcher.Constraint("DistanceX", 3, 2, 3, 1, Q("3.25 mm")),
    Sketcher.Constraint("DistanceX", -1, 1, 0, 2, Q("17.608469 mm")),
])
pocket15 = doc.addObject("PartDesign::Pocket", "Pocket014")
body.addObject(pocket15)
pocket15.Profile = sketch21
pocket15.Length = 10
pocket15.Reversed = True

sketch22 = doc.addObject("Sketcher::SketchObject", "Sketch021")
body.addObject(sketch22)
sketch22.AttachmentSupport = (doc.XY_Plane, [""])
sketch22.MapMode = "FlatFace"
sketch22.AttachmentOffset = App.Placement(Vector(0, 0, -50), App.Rotation())
sketch22.addGeometry([
    Part.LineSegment(Vector(9.3, -38.9, 0), Vector(17.3, -38.9, 0)),
    Part.ArcOfCircle(Part.Circle(Vector(17.3, -41.4, 0), Vector(0, 0, 1), 2.5), math.radians(-90), math.radians(90)),
    Part.LineSegment(Vector(17.3, -43.9, 0), Vector(9.3, -43.9, 0)),
    Part.ArcOfCircle(Part.Circle(Vector(9.3, -41.4, 0), Vector(0, 0, 1), 2.5), math.radians(90), math.radians(270)),
], False)
sketch22.addConstraint([
    Sketcher.Constraint("Tangent", 0, 2, 1, 2),
    Sketcher.Constraint("Tangent", 1, 1, 2, 1),
    Sketcher.Constraint("Tangent", 2, 2, 3, 2),
    Sketcher.Constraint("Tangent", 3, 1, 0, 1),
    Sketcher.Constraint("Horizontal", 0),
    Sketcher.Constraint("Horizontal", 2),
    Sketcher.Constraint("Radius", 1, Q("2.5 mm")),
    Sketcher.Constraint("DistanceX", 0, 1, 0, 2, Q("8 mm")),
    Sketcher.Constraint("DistanceY", 1, 3, -1, 1, Q("41.420309 mm")),
    Sketcher.Constraint("DistanceX", -1, 1, 1, 3, Q("17.330506 mm")),
])
pad7 = doc.addObject("PartDesign::Pad", "Pad006")
body.addObject(pad7)
pad7.Profile = sketch22
pad7.Length = 10
pad7.Reversed = True

sketch23 = doc.addObject("Sketcher::SketchObject", "Sketch022")
body.addObject(sketch23)
sketch23.AttachmentSupport = (doc.XZ_Plane, [""])
sketch23.MapMode = "FlatFace"
sketch23.AttachmentOffset = App.Placement(Vector(0, 0, 43.920309), App.Rotation())
add_polygon(sketch23, [(10.8, -60), (9.3, -50), (6.8, -50), (6.8, -60)])
sketch23.addConstraint([
    Sketcher.Constraint("Horizontal", 1),
    Sketcher.Constraint("Vertical", 2),
    Sketcher.Constraint("Horizontal", 3),
    Sketcher.Constraint("DistanceX", 3, 1, 3, 2, Q("4 mm")),
    Sketcher.Constraint("DistanceY", 2, 2, 2, 1, Q("10 mm")),
    Sketcher.Constraint("DistanceX", 1, 2, 1, 1, Q("2.5 mm")),
    Sketcher.Constraint("DistanceY", 0, 2, -1, 1, Q("50 mm")),
    Sketcher.Constraint("DistanceX", -1, 1, 0, 2, Q("9.330506 mm")),
])
pocket16 = doc.addObject("PartDesign::Pocket", "Pocket015")
body.addObject(pocket16)
pocket16.Profile = sketch23
pocket16.Length = 10

sketch24 = doc.addObject("Sketcher::SketchObject", "Sketch023")
body.addObject(sketch24)
sketch24.AttachmentSupport = (doc.XZ_Plane, [""])
sketch24.MapMode = "FlatFace"
sketch24.AttachmentOffset = App.Placement(Vector(0, 0, 43.920309), App.Rotation())
add_polygon(sketch24, [(17.3, -50), (16.6, -60), (19.8, -60), (19.8, -50)])
sketch24.addConstraint([
    Sketcher.Constraint("Horizontal", 1),
    Sketcher.Constraint("Vertical", 2),
    Sketcher.Constraint("Horizontal", 3),
    Sketcher.Constraint("DistanceY", 2, 1, 2, 2, Q("10 mm")),
    Sketcher.Constraint("DistanceX", 3, 2, 3, 1, Q("2.5 mm")),
    Sketcher.Constraint("DistanceY", 0, 2, -1, 1, Q("60 mm")),
    Sketcher.Constraint("DistanceX", 1, 1, 1, 2, Q("3.25 mm")),
    Sketcher.Constraint("DistanceX", -1, 1, 0, 2, Q("16.580506 mm")),
])
pocket17 = doc.addObject("PartDesign::Pocket", "Pocket016")
body.addObject(pocket17)
pocket17.Profile = sketch24
pocket17.Length = 10

sketch25 = doc.addObject("Sketcher::SketchObject", "Sketch024")
body.addObject(sketch25)
sketch25.AttachmentSupport = (doc.XY_Plane, [""])
sketch25.MapMode = "FlatFace"
sketch25.AttachmentOffset = App.Placement(Vector(0, 0, -50), App.Rotation())
sketch25.addGeometry([
    Part.LineSegment(Vector(86.4, 43.6, 0), Vector(94.4, 43.6, 0)),
    Part.ArcOfCircle(Part.Circle(Vector(94.4, 41.1, 0), Vector(0, 0, 1), 2.5), math.radians(-90), math.radians(90)),
    Part.LineSegment(Vector(94.4, 38.6, 0), Vector(86.4, 38.6, 0)),
    Part.ArcOfCircle(Part.Circle(Vector(86.4, 41.1, 0), Vector(0, 0, 1), 2.5), math.radians(90), math.radians(270)),
], False)
sketch25.addConstraint([
    Sketcher.Constraint("Tangent", 0, 2, 1, 2),
    Sketcher.Constraint("Tangent", 1, 1, 2, 1),
    Sketcher.Constraint("Tangent", 2, 2, 3, 2),
    Sketcher.Constraint("Tangent", 3, 1, 0, 1),
    Sketcher.Constraint("Horizontal", 0),
    Sketcher.Constraint("Horizontal", 2),
    Sketcher.Constraint("Radius", 1, Q("2.5 mm")),
    Sketcher.Constraint("DistanceX", 0, 1, 0, 2, Q("8 mm")),
    Sketcher.Constraint("DistanceY", -1, 1, 1, 3, Q("41.079691 mm")),
    Sketcher.Constraint("DistanceX", -1, 1, 1, 3, Q("94.397005 mm")),
])
pad8 = doc.addObject("PartDesign::Pad", "Pad007")
body.addObject(pad8)
pad8.Profile = sketch25
pad8.Length = 10
pad8.Reversed = True

sketch26 = doc.addObject("Sketcher::SketchObject", "Sketch025")
body.addObject(sketch26)
sketch26.AttachmentSupport = (doc.XZ_Plane, [""])
sketch26.MapMode = "FlatFace"
sketch26.AttachmentOffset = App.Placement(Vector(0, 0, -43.579691), App.Rotation())
add_polygon(sketch26, [(86.4, -50), (87.9, -60), (83.9, -60), (83.9, -50)])
sketch26.addConstraint([
    Sketcher.Constraint("Horizontal", 1),
    Sketcher.Constraint("Vertical", 2),
    Sketcher.Constraint("Horizontal", 3),
    Sketcher.Constraint("DistanceX", 1, 2, 1, 1, Q("4 mm")),
    Sketcher.Constraint("DistanceY", 2, 1, 2, 2, Q("10 mm")),
    Sketcher.Constraint("DistanceX", 3, 1, 3, 2, Q("2.5 mm")),
    Sketcher.Constraint("DistanceY", 0, 2, -1, 1, Q("60 mm")),
    Sketcher.Constraint("DistanceX", -1, 1, 0, 2, Q("87.897005 mm")),
])
pocket18 = doc.addObject("PartDesign::Pocket", "Pocket017")
body.addObject(pocket18)
pocket18.Profile = sketch26
pocket18.Length = 10
pocket18.Reversed = True

sketch27 = doc.addObject("Sketcher::SketchObject", "Sketch026")
body.addObject(sketch27)
sketch27.AttachmentSupport = (doc.XZ_Plane, [""])
sketch27.MapMode = "FlatFace"
sketch27.AttachmentOffset = App.Placement(Vector(0, 0, -43.579691), App.Rotation())
add_polygon(sketch27, [(93.6, -60), (94.4, -50), (96.9, -50), (96.9, -60)])
sketch27.addConstraint([
    Sketcher.Constraint("Horizontal", 1),
    Sketcher.Constraint("Vertical", 2),
    Sketcher.Constraint("Horizontal", 3),
    Sketcher.Constraint("DistanceY", 2, 2, 2, 1, Q("10 mm")),
    Sketcher.Constraint("DistanceX", 1, 1, 1, 2, Q("2.5 mm")),
    Sketcher.Constraint("DistanceY", 0, 2, -1, 1, Q("50 mm")),
    Sketcher.Constraint("DistanceX", 3, 2, 3, 1, Q("3.25 mm")),
    Sketcher.Constraint("DistanceX", -1, 1, 0, 2, Q("94.397005 mm")),
])
pocket19 = doc.addObject("PartDesign::Pocket", "Pocket018")
body.addObject(pocket19)
pocket19.Profile = sketch27
pocket19.Length = 10
pocket19.Reversed = True

sketch28 = doc.addObject("Sketcher::SketchObject", "Sketch027")
body.addObject(sketch28)
sketch28.AttachmentSupport = (doc.XY_Plane, [""])
sketch28.MapMode = "FlatFace"
sketch28.AttachmentOffset = App.Placement(Vector(0, 0, -50), App.Rotation())
sketch28.addGeometry([
    Part.LineSegment(Vector(85.1, -38.9, 0), Vector(93.1, -38.9, 0)),
    Part.ArcOfCircle(Part.Circle(Vector(93.1, -41.4, 0), Vector(0, 0, 1), 2.5), math.radians(-90), math.radians(90)),
    Part.LineSegment(Vector(93.1, -43.9, 0), Vector(85.1, -43.9, 0)),
    Part.ArcOfCircle(Part.Circle(Vector(85.1, -41.4, 0), Vector(0, 0, 1), 2.5), math.radians(90), math.radians(270)),
], False)
sketch28.addConstraint([
    Sketcher.Constraint("Tangent", 0, 2, 1, 2),
    Sketcher.Constraint("Tangent", 1, 1, 2, 1),
    Sketcher.Constraint("Tangent", 2, 2, 3, 2),
    Sketcher.Constraint("Tangent", 3, 1, 0, 1),
    Sketcher.Constraint("Horizontal", 0),
    Sketcher.Constraint("Horizontal", 2),
    Sketcher.Constraint("Radius", 1, Q("2.5 mm")),
    Sketcher.Constraint("DistanceX", 0, 1, 0, 2, Q("8 mm")),
    Sketcher.Constraint("DistanceY", 1, 3, -1, 1, Q("41.420309 mm")),
    Sketcher.Constraint("DistanceX", -1, 1, 1, 3, Q("93.140486 mm")),
])
pad9 = doc.addObject("PartDesign::Pad", "Pad008")
body.addObject(pad9)
pad9.Profile = sketch28
pad9.Length = 10
pad9.Reversed = True

sketch29 = doc.addObject("Sketcher::SketchObject", "Sketch028")
body.addObject(sketch29)
sketch29.AttachmentSupport = (doc.XZ_Plane, [""])
sketch29.MapMode = "FlatFace"
sketch29.AttachmentOffset = App.Placement(Vector(0, 0, 43.920309), App.Rotation())
add_polygon(sketch29, [(86.6, -60), (85.1, -50), (82.6, -50), (82.6, -60)])
sketch29.addConstraint([
    Sketcher.Constraint("Horizontal", 1),
    Sketcher.Constraint("Vertical", 2),
    Sketcher.Constraint("Horizontal", 3),
    Sketcher.Constraint("DistanceX", 3, 1, 3, 2, Q("4 mm")),
    Sketcher.Constraint("DistanceY", 2, 2, 2, 1, Q("10 mm")),
    Sketcher.Constraint("DistanceX", 1, 2, 1, 1, Q("2.5 mm")),
    Sketcher.Constraint("DistanceY", 0, 2, -1, 1, Q("50 mm")),
    Sketcher.Constraint("DistanceX", -1, 1, 0, 2, Q("85.140486 mm")),
])
pocket20 = doc.addObject("PartDesign::Pocket", "Pocket019")
body.addObject(pocket20)
pocket20.Profile = sketch29
pocket20.Length = 10

sketch30 = doc.addObject("Sketcher::SketchObject", "Sketch029")
body.addObject(sketch30)
sketch30.AttachmentSupport = (doc.XZ_Plane, [""])
sketch30.MapMode = "FlatFace"
sketch30.AttachmentOffset = App.Placement(Vector(0, 0, 43.920309), App.Rotation())
add_polygon(sketch30, [(93.1, -50), (91.6, -60), (95.6, -60), (95.6, -50)])
sketch30.addConstraint([
    Sketcher.Constraint("Horizontal", 1),
    Sketcher.Constraint("Vertical", 2),
    Sketcher.Constraint("Horizontal", 3),
    Sketcher.Constraint("DistanceY", 2, 1, 2, 2, Q("10 mm")),
    Sketcher.Constraint("DistanceX", 3, 2, 3, 1, Q("2.5 mm")),
    Sketcher.Constraint("DistanceY", 0, 2, -1, 1, Q("60 mm")),
    Sketcher.Constraint("Distance", 0, Q("10.110771 mm")),
    Sketcher.Constraint("DistanceX", -1, 1, 0, 2, Q("91.647943 mm")),
])
pocket21 = doc.addObject("PartDesign::Pocket", "Pocket020")
body.addObject(pocket21)
pocket21.Profile = sketch30
pocket21.Length = 10

doc.recompute()
